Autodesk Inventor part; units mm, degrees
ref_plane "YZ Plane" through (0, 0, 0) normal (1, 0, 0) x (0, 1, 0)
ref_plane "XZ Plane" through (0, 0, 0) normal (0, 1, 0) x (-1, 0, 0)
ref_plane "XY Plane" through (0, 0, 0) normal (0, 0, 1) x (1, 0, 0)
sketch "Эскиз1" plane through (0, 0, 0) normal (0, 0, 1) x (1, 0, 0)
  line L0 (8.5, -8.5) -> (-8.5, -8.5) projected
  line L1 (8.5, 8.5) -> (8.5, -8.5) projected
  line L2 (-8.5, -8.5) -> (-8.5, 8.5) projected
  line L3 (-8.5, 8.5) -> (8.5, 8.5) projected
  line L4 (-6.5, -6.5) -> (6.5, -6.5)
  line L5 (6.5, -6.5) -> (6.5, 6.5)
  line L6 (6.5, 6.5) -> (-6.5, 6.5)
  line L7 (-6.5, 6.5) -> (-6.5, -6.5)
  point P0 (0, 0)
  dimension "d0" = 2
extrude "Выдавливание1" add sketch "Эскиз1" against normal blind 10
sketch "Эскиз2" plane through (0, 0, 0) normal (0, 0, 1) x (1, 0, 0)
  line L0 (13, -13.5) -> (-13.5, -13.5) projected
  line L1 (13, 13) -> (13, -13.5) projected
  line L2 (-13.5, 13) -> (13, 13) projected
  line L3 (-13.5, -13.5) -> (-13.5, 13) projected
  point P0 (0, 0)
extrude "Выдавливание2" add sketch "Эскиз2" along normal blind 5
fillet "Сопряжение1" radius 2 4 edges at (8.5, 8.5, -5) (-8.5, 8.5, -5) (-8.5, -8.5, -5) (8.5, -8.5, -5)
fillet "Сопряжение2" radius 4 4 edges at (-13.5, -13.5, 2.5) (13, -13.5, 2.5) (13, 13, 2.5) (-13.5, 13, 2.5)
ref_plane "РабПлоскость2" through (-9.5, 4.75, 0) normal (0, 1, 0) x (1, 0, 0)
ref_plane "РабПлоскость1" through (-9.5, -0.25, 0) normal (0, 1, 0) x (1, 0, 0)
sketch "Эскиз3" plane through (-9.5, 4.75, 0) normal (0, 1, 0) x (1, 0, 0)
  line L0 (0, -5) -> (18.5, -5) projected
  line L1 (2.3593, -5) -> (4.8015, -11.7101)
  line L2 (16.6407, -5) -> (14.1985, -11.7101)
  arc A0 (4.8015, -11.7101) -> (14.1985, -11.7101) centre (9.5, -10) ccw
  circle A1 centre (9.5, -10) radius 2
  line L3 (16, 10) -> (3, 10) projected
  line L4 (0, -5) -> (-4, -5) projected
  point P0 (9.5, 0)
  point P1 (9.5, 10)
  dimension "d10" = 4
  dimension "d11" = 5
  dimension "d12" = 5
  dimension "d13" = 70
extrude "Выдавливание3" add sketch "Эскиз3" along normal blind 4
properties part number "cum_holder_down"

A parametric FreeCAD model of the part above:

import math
import FreeCAD as App
import Part
import Sketcher
from FreeCAD import Vector
Q = App.Units.Quantity


def edges_at(feature, points):
    """Names of the edges that pass closest to the given points."""
    edges = feature.Shape.Edges
    near = lambda p: min(range(len(edges)), key=lambda i: edges[i].distToShape(Part.Vertex(*p))[0])
    return sorted({f"Edge{near(p) + 1}" for p in points})


def add_polygon(sketch, points):
    """Adds a closed chain of lines whose ends are joined by coincident constraints."""
    first, n = sketch.GeometryCount, len(points)
    for a, b in zip(points, points[1:] + points[:1]):
        sketch.addGeometry(Part.LineSegment(App.Vector(*a, 0), App.Vector(*b, 0)), False)
    for i in range(n):
        sketch.addConstraint(Sketcher.Constraint("Coincident", first + i, 2, first + (i + 1) % n, 1))

doc = App.newDocument("Part")
body = doc.addObject("PartDesign::Body", "Body")

# Sketch on XY plane
sketch1 = body.newObject("Sketcher::SketchObject", "Sketch")
sketch1.AttachmentSupport = (doc.getObject("XY_Plane"), [""])
sketch1.MapMode = "FlatFace"
add_polygon(sketch1, [(-8, -8), (8, -8), (8, 8), (-8, 8)])  # lines 0-3
add_polygon(sketch1, [(6, -6), (-6, -6), (-6, 6), (6, 6)])  # lines 4-7
sketch1.addConstraint([
    Sketcher.Constraint("Horizontal", 0),
    Sketcher.Constraint("Vertical", 1),
    Sketcher.Constraint("Horizontal", 2),
    Sketcher.Constraint("Vertical", 3),
    Sketcher.Constraint("Horizontal", 4),
    Sketcher.Constraint("Vertical", 5),
    Sketcher.Constraint("Horizontal", 6),
    Sketcher.Constraint("Vertical", 7),
    Sketcher.Constraint("Symmetric", 0, 2, 2, 2, -1, 1),
    Sketcher.Constraint("Symmetric", 4, 2, 6, 2, -1, 1),
    Sketcher.Constraint("Equal", 2, 1),
    Sketcher.Constraint("Equal", 6, 5),
    Sketcher.Constraint("DistanceX", 3, 2, 4, 2, Q("2 mm")),
    Sketcher.Constraint("DistanceX", 0, 1, 0, 2, Q("17 mm")),
])
pad1 = body.newObject("PartDesign::Pad", "Pad")
pad1.Profile = sketch1
pad1.Length = 10
pad1.Reversed = True

# Sketch on XY plane
sketch2 = body.newObject("Sketcher::SketchObject", "Sketch001")
sketch2.AttachmentSupport = (doc.getObject("XY_Plane"), [""])
sketch2.MapMode = "FlatFace"
add_polygon(sketch2, [(-14, -14), (13, -14), (13, 13), (-14, 13)])  # lines 0-3
sketch2.addConstraint([
    Sketcher.Constraint("Horizontal", 0),
    Sketcher.Constraint("Vertical", 1),
    Sketcher.Constraint("Horizontal", 2),
    Sketcher.Constraint("Vertical", 3),
    Sketcher.Constraint("Equal", 2, 1),
    Sketcher.Constraint("DistanceX", 0, 1, 0, 2, Q("26.5 mm")),
    Sketcher.Constraint("DistanceX", -1, 1, 0, 2, Q("13 mm")),
    Sketcher.Constraint("DistanceY", -1, 1, 1, 2, Q("13 mm")),
])
pad2 = body.newObject("PartDesign::Pad", "Pad001")
pad2.Profile = sketch2
pad2.Length = 5
doc.recompute()

fillet = body.newObject("PartDesign::Fillet", "Fillet")
fillet.Base = (pad2, edges_at(pad2, [
    (8.5, 8.5, -5),
    (-8.5, 8.5, -5),
    (-8.5, -8.5, -5),
    (8.5, -8.5, -5),
]))
fillet.Radius = 2
doc.recompute()

fillet2 = body.newObject("PartDesign::Fillet", "Fillet001")
fillet2.Base = (fillet, edges_at(fillet, [
    (-13.5, -13.5, 2.5),
    (13, -13.5, 2.5),
    (13, 13, 2.5),
    (-13.5, 13, 2.5),
]))
fillet2.Radius = 4

# Sketch on XZ plane
sketch3 = body.newObject("Sketcher::SketchObject", "Sketch002")
sketch3.AttachmentSupport = (doc.getObject("XZ_Plane"), [""])
sketch3.MapMode = "FlatFace"
sketch3.AttachmentOffset = App.Placement(Vector(0, 0, -4.75), App.Rotation())
sketch3.addGeometry([
    Part.LineSegment(Vector(7.1, 5, 0), Vector(-7.1, 5, 0)),  # 0
    Part.LineSegment(Vector(-7.1, 5, 0), Vector(-4.7, 11.7, 0)),  # 1
    Part.ArcOfCircle(Part.Circle(Vector(0, 10, 0), Vector(0, 0, 1), 5), math.radians(20), math.radians(160)),  # 2
    Part.LineSegment(Vector(4.7, 11.7, 0), Vector(7.1, 5, 0)),  # 3
    Part.Circle(Vector(0, 10, 0), Vector(0, 0, 1), 2),  # 4
], False)
sketch3.addConstraint([
    Sketcher.Constraint("Coincident", 0, 2, 1, 1),
    Sketcher.Constraint("Tangent", 1, 2, 2, 2),
    Sketcher.Constraint("Tangent", 2, 1, 3, 1),
    Sketcher.Constraint("Coincident", 3, 2, 0, 1),
    Sketcher.Constraint("Horizontal", 0),
    Sketcher.Constraint("Coincident", 4, 3, 2, 3),
    Sketcher.Constraint("Symmetric", 1, 2, 2, 1, -2),
    Sketcher.Constraint("Diameter", 4, Q("4 mm")),
    Sketcher.Constraint("Radius", 2, Q("5 mm")),
    Sketcher.Constraint("Angle", 1, Q("70.0006 deg")),
    Sketcher.Constraint("DistanceY", -1, 1, 0, 2, Q("5 mm")),
    Sketcher.Constraint("DistanceY", 0, 2, 2, 3, Q("5 mm")),
])
pad3 = body.newObject("PartDesign::Pad", "Pad002")
pad3.Profile = sketch3
pad3.Length = 4
pad3.Reversed = True

doc.recompute()
